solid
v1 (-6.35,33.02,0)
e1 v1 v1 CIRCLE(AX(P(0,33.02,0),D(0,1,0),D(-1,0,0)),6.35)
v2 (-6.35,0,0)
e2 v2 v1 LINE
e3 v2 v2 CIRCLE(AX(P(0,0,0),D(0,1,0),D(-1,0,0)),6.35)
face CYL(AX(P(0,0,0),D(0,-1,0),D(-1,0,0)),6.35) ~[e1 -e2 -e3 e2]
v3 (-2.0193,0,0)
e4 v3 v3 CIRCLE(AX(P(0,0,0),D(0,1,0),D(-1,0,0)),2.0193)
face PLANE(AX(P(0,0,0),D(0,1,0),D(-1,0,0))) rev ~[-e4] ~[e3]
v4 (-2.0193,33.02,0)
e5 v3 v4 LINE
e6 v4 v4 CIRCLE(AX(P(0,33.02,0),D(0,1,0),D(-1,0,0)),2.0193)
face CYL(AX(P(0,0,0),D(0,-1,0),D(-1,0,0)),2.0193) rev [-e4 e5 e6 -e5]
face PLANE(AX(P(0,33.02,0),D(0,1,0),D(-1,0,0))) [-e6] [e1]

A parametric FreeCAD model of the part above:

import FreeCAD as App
import Part
import Sketcher
Q = App.Units.Quantity

doc = App.newDocument("Part")
params = doc.addObject("Spreadsheet::Sheet", "Params")
for row, (alias, value) in enumerate([
    ("sketch1_diameter", "0.5 in"),
    ("sketch1_diameter2", "0.159 in"),
    ("pad1_length", "1.3 in"),
], start=1):
    params.set(f"A{row}", alias)
    params.set(f"B{row}", "=" + value)
    params.setAlias(f"B{row}", alias)

body = doc.addObject("PartDesign::Body", "Body")

# Sketch on XZ plane
sketch1 = body.newObject("Sketcher::SketchObject", "Sketch")
sketch1.AttachmentSupport = (doc.getObject("XZ_Plane"), [""])
sketch1.MapMode = "FlatFace"
sketch1.addGeometry([
    Part.Circle(App.Vector(0, 0, 0), App.Vector(0, 0, 1), 6.3),
    Part.Circle(App.Vector(0, 0, 0), App.Vector(0, 0, 1), 2),
], False)
sketch1.addConstraint([
    Sketcher.Constraint("Coincident", 0, 3, -1, 1),
    Sketcher.Constraint("Coincident", 1, 3, -1, 1),
    Sketcher.Constraint("Diameter", 0, Q("0.5 in")),
    Sketcher.Constraint("Diameter", 1, Q("0.159 in")),
])
sketch1.setExpression("Constraints[2]", "Params.sketch1_diameter")
sketch1.setExpression("Constraints[3]", "Params.sketch1_diameter2")
pad1 = body.newObject("PartDesign::Pad", "Pad")
pad1.Profile = sketch1
pad1.setExpression("Length", "Params.pad1_length")
pad1.Reversed = True

doc.recompute()
